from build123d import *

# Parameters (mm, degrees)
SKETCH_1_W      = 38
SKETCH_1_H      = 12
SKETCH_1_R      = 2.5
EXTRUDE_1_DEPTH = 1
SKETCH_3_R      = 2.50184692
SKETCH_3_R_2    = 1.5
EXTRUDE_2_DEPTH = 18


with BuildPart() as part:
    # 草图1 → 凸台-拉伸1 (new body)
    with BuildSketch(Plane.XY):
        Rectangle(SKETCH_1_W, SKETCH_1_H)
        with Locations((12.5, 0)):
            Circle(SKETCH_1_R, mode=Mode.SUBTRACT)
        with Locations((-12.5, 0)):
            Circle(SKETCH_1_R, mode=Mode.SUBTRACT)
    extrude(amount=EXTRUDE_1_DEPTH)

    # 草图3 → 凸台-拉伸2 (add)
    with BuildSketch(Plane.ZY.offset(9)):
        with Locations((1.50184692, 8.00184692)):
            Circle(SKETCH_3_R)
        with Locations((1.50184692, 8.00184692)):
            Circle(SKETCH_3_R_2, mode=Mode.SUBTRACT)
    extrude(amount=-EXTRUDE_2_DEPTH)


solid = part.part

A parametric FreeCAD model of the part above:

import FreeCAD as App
import Part
import Sketcher
from FreeCAD import Vector
Q = App.Units.Quantity


def add_polygon(sketch, points):
    """Adds a closed chain of lines whose ends are joined by coincident constraints."""
    first, n = sketch.GeometryCount, len(points)
    for a, b in zip(points, points[1:] + points[:1]):
        sketch.addGeometry(Part.LineSegment(App.Vector(*a, 0), App.Vector(*b, 0)), False)
    for i in range(n):
        sketch.addConstraint(Sketcher.Constraint("Coincident", first + i, 2, first + (i + 1) % n, 1))

doc = App.newDocument("Part")
body = doc.addObject("PartDesign::Body", "Body")

sketch1 = body.newObject("Sketcher::SketchObject", "Sketch")
sketch1.AttachmentSupport = (doc.getObject("XY_Plane"), [""])
sketch1.MapMode = "FlatFace"
add_polygon(sketch1, [(-19, 6), (-19, -6), (19, -6), (19, 6)])
sketch1.addGeometry(Part.Circle(Vector(-12.5, 0, 0), Vector(0, 0, 1), 2.5), False)
sketch1.addGeometry(Part.Circle(Vector(12.5, 0, 0), Vector(0, 0, 1), 2.5), False)
sketch1.addConstraint([
    Sketcher.Constraint("Vertical", 0),
    Sketcher.Constraint("Horizontal", 1),
    Sketcher.Constraint("Vertical", 2),
    Sketcher.Constraint("Horizontal", 3),
    Sketcher.Constraint("Equal", 4, 5),
    Sketcher.Constraint("Symmetric", 4, 3, 5, 3, -1, 1),
    Sketcher.Constraint("Symmetric", 0, 2, 2, 2, -1, 1),
    Sketcher.Constraint("PointOnObject", 4, 3, -1),
    Sketcher.Constraint("Diameter", 4, Q("5 mm")),
    Sketcher.Constraint("DistanceX", 1, 1, 1, 2, Q("38 mm")),
    Sketcher.Constraint("DistanceY", 0, 2, 0, 1, Q("12 mm")),
    Sketcher.Constraint("DistanceX", 4, 3, 5, 3, Q("25 mm")),
])
pad1 = body.newObject("PartDesign::Pad", "Pad")
pad1.Profile = sketch1
pad1.Length = 1

sketch2 = body.newObject("Sketcher::SketchObject", "Sketch001")
sketch2.AttachmentSupport = (doc.getObject("YZ_Plane"), [""])
sketch2.MapMode = "FlatFace"
sketch2.AttachmentOffset = App.Placement(Vector(0, 0, -9), App.Rotation())
sketch2.addGeometry([
    Part.Circle(Vector(8, 1.5, 0), Vector(0, 0, 1), 2.5),
    Part.Circle(Vector(8, 1.5, 0), Vector(0, 0, 1), 1.5),
], False)
sketch2.addConstraint([
    Sketcher.Constraint("Coincident", 1, 3, 0, 3),
    Sketcher.Constraint("Diameter", 1, Q("3 mm")),
    Sketcher.Constraint("Diameter", 0, Q("5.003694 mm")),
    Sketcher.Constraint("DistanceX", -1, 1, 0, 3, Q("8.001847 mm")),
    Sketcher.Constraint("DistanceY", -1, 1, 0, 3, Q("1.501847 mm")),
])
pad2 = body.newObject("PartDesign::Pad", "Pad001")
pad2.Profile = sketch2
pad2.Length = 18

doc.recompute()
